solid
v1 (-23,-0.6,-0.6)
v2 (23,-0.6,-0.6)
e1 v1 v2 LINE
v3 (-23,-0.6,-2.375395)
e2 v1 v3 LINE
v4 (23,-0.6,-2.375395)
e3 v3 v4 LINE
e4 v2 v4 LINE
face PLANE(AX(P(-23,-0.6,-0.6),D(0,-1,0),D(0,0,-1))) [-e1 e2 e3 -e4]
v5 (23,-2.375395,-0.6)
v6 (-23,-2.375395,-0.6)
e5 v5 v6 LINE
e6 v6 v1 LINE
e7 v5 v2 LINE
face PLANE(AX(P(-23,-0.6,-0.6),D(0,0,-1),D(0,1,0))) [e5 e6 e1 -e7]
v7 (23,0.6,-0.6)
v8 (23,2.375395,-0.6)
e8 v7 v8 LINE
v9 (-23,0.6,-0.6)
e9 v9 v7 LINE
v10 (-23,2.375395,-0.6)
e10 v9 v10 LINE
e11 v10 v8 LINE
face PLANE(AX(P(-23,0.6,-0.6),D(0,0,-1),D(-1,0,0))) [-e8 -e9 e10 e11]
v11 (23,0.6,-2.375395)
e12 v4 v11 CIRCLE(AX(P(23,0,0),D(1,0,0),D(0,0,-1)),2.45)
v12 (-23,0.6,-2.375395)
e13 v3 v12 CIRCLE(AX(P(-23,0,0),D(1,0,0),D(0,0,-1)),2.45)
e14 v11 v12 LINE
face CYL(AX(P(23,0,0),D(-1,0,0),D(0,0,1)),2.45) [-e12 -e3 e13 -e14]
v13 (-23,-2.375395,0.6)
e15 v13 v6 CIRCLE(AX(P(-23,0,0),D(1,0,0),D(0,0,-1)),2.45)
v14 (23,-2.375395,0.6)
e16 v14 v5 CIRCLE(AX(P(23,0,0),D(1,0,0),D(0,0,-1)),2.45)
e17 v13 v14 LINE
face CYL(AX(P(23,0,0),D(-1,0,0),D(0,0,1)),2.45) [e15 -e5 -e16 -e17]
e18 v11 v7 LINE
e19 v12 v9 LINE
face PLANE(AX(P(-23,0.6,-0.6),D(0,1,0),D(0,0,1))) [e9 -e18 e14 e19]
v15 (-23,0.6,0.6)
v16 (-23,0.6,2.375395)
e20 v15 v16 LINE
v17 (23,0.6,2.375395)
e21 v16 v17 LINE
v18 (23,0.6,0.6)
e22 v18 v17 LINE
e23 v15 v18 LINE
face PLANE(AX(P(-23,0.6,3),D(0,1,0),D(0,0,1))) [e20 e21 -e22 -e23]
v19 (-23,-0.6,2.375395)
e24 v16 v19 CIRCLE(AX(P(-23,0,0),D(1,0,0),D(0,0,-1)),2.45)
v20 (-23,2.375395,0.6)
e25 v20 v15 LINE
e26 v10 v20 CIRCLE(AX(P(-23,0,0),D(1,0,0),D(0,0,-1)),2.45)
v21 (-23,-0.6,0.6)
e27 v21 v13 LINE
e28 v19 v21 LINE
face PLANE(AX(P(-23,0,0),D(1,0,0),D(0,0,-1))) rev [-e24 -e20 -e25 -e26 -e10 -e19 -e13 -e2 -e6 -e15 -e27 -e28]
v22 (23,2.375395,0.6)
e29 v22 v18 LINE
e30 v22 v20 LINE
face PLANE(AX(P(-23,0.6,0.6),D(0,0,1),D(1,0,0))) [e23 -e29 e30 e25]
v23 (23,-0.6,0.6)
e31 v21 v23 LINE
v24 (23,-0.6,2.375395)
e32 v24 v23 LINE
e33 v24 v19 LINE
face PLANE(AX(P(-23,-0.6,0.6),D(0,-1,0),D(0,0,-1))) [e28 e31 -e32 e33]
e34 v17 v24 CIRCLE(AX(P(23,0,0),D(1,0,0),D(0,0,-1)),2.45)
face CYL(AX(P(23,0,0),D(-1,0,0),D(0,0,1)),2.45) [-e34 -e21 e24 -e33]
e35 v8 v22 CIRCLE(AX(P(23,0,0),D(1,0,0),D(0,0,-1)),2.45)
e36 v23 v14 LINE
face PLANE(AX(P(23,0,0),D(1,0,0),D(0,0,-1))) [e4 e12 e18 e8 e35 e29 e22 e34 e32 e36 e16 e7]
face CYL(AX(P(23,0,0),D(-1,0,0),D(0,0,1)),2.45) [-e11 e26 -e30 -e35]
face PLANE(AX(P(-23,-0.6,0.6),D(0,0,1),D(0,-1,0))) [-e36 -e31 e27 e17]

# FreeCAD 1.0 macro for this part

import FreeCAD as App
import Part
import Sketcher
from FreeCAD import Vector


def add_polygon(sketch, points):
    """Adds a closed chain of lines whose ends are joined by coincident constraints."""
    first, n = sketch.GeometryCount, len(points)
    for a, b in zip(points, points[1:] + points[:1]):
        sketch.addGeometry(Part.LineSegment(App.Vector(*a, 0), App.Vector(*b, 0)), False)
    for i in range(n):
        sketch.addConstraint(Sketcher.Constraint("Coincident", first + i, 2, first + (i + 1) % n, 1))

doc = App.newDocument("Part")
body = doc.addObject("PartDesign::Body", "Body")

# Sketch on YZ plane
sketch1 = body.newObject("Sketcher::SketchObject", "Sketch")
sketch1.AttachmentSupport = (doc.getObject("YZ_Plane"), [""])
sketch1.MapMode = "FlatFace"
sketch1.addGeometry(Part.Circle(Vector(0, 0, 0), Vector(0, 0, 1), 2.5), False)
sketch1.addConstraint([
    Sketcher.Constraint("Coincident", 0, 3, -1, 1),
    Sketcher.Constraint("Diameter", 0, 4.9),
])
pad1 = body.newObject("PartDesign::Pad", "Pad")
pad1.Profile = sketch1
pad1.Length = 46
pad1.Midplane = True

# Sketch on YZ plane
sketch2 = body.newObject("Sketcher::SketchObject", "Sketch001")
sketch2.AttachmentSupport = (doc.getObject("YZ_Plane"), [""])
sketch2.MapMode = "FlatFace"
sketch2.AttachmentOffset = App.Placement(Vector(0, 0, 23), App.Rotation())
add_polygon(sketch2, [(8.1, 8.1), (-8.1, 8.1), (-8.1, -8.1), (8.1, -8.1)])  # lines 0-3
add_polygon(sketch2, [(-0.6, 3), (0.6, 3), (0.6, 0.6), (3, 0.6), (3, -0.6), (0.6, -0.6), (0.6, -3), (-0.6, -3), (-0.6, -0.6), (-3, -0.6), (-3, 0.6), (-0.6, 0.6)])  # lines 4-15
sketch2.addConstraint([
    Sketcher.Constraint("Horizontal", 0),
    Sketcher.Constraint("Vertical", 1),
    Sketcher.Constraint("Horizontal", 2),
    Sketcher.Constraint("Vertical", 3),
    Sketcher.Constraint("Horizontal", 4),
    Sketcher.Constraint("Vertical", 5),
    Sketcher.Constraint("Horizontal", 6),
    Sketcher.Constraint("Vertical", 7),
    Sketcher.Constraint("Horizontal", 8),
    Sketcher.Constraint("Vertical", 9),
    Sketcher.Constraint("Horizontal", 10),
    Sketcher.Constraint("Vertical", 11),
    Sketcher.Constraint("Horizontal", 12),
    Sketcher.Constraint("Vertical", 13),
    Sketcher.Constraint("Horizontal", 14),
    Sketcher.Constraint("Vertical", 15),
    Sketcher.Constraint("Symmetric", 0, 2, 2, 2, -1, 1),
    Sketcher.Constraint("Symmetric", 4, 2, 10, 2, -1, 1),
    Sketcher.Constraint("Symmetric", 6, 2, 12, 2, -1, 1),
    Sketcher.Constraint("Symmetric", 8, 2, 14, 2, -1, 1),
    Sketcher.Constraint("Symmetric", 8, 2, 11, 2, -2),
    Sketcher.Constraint("Equal", 2, 1),
    Sketcher.Constraint("Equal", 14, 5),
    Sketcher.Constraint("Equal", 10, 7),
    Sketcher.Constraint("DistanceX", 4, 1, 4, 2, 1.2),
    Sketcher.Constraint("DistanceX", 6, 1, 6, 2, 2.4),
    Sketcher.Constraint("DistanceX", 0, 2, 0, 1, 16.204),
])
pocket1 = body.newObject("PartDesign::Pocket", "Pocket")
pocket1.Profile = sketch2
pocket1.Type = "ThroughAll"

doc.recompute()
